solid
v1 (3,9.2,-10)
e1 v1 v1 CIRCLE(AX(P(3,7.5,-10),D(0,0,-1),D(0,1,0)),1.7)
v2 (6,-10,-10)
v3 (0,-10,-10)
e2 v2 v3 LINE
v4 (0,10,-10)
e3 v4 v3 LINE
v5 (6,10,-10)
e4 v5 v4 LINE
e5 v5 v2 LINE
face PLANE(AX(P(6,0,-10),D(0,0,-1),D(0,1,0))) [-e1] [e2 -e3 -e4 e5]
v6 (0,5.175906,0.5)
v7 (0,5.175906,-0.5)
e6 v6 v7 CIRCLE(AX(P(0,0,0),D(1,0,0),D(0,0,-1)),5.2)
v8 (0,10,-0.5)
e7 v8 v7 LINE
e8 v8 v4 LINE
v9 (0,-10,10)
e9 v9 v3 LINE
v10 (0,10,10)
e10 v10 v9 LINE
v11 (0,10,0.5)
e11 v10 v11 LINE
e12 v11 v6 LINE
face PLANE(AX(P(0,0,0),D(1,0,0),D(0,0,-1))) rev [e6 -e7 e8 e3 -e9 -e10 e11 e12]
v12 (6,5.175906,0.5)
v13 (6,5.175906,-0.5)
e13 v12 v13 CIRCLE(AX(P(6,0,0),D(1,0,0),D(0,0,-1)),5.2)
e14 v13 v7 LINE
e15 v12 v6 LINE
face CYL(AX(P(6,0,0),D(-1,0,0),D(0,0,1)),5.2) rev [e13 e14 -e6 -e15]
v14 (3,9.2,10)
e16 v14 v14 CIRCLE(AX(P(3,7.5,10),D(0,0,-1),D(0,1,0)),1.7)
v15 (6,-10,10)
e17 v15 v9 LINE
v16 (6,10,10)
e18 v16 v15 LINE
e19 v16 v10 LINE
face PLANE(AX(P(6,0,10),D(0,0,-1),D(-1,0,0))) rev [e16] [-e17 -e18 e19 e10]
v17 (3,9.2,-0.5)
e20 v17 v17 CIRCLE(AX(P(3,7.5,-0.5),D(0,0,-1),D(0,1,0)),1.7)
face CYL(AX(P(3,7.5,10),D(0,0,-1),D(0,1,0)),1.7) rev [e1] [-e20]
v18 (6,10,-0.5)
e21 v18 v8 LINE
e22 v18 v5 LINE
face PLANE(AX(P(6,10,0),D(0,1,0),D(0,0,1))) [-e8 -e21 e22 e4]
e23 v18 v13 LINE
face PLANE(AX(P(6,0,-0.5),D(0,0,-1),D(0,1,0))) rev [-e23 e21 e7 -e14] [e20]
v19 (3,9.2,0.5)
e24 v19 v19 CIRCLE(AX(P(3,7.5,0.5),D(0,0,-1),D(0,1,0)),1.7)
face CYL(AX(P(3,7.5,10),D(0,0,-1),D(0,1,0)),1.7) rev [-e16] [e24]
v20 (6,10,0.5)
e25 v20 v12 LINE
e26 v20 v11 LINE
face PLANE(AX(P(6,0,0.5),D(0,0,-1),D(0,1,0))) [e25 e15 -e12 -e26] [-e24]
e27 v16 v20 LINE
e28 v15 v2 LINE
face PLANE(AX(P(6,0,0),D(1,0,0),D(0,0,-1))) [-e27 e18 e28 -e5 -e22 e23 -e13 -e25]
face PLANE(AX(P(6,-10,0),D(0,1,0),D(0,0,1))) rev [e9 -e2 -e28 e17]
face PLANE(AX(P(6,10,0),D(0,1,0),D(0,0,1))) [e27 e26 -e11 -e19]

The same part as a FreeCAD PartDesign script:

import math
import FreeCAD as App
import Part
import Sketcher

V = App.Vector
Q = App.Units.Quantity

doc = App.newDocument("Part")
body = doc.addObject("PartDesign::Body", "Body")

# Sketch on YZ plane
sketch1 = doc.addObject("Sketcher::SketchObject", "Sketch")
body.addObject(sketch1)
sketch1.AttachmentSupport = (doc.YZ_Plane, [""])
sketch1.MapMode = "FlatFace"
sketch1.addGeometry([
    Part.LineSegment(V(5.2, 0.5, 0), V(10, 0.5, 0)),  # 0
    Part.LineSegment(V(10, 0.5, 0), V(10, 10, 0)),  # 1
    Part.LineSegment(V(10, 10, 0), V(-10, 10, 0)),  # 2
    Part.LineSegment(V(-10, 10, 0), V(-10, -10, 0)),  # 3
    Part.LineSegment(V(-10, -10, 0), V(10, -10, 0)),  # 4
    Part.LineSegment(V(10, -10, 0), V(10, -0.5, 0)),  # 5
    Part.LineSegment(V(10, -0.5, 0), V(5.2, -0.5, 0)),  # 6
    Part.ArcOfCircle(Part.Circle(V(0, 0, 0), V(0, 0, 1), 5.2), math.radians(-90), math.radians(-6)),  # 7
    Part.ArcOfCircle(Part.Circle(V(0, 0, 0), V(0, 0, 1), 5.2), math.radians(6), math.radians(270)),  # 8
], False)
sketch1.addConstraint([
    Sketcher.Constraint("Coincident", 0, 2, 1, 1),
    Sketcher.Constraint("Coincident", 1, 2, 2, 1),
    Sketcher.Constraint("Coincident", 2, 2, 3, 1),
    Sketcher.Constraint("Coincident", 3, 2, 4, 1),
    Sketcher.Constraint("Coincident", 4, 2, 5, 1),
    Sketcher.Constraint("Coincident", 5, 2, 6, 1),
    Sketcher.Constraint("Coincident", 6, 2, 7, 2),
    Sketcher.Constraint("Tangent", 7, 1, 8, 2),
    Sketcher.Constraint("Coincident", 8, 1, 0, 1),
    Sketcher.Constraint("Horizontal", 0),
    Sketcher.Constraint("Vertical", 1),
    Sketcher.Constraint("Horizontal", 2),
    Sketcher.Constraint("Vertical", 3),
    Sketcher.Constraint("Horizontal", 4),
    Sketcher.Constraint("Vertical", 5),
    Sketcher.Constraint("Horizontal", 6),
    Sketcher.Constraint("Coincident", 7, 3, -1, 1),
    Sketcher.Constraint("Equal", 7, 8),
    Sketcher.Constraint("Symmetric", 1, 2, 3, 2, -1, 1),
    Sketcher.Constraint("Symmetric", 0, 2, 5, 2, -1),
    Sketcher.Constraint("PointOnObject", 7, 1, -2),
    Sketcher.Constraint("Equal", 4, 3),
    Sketcher.Constraint("Radius", 7, Q("5.2 mm")),
    Sketcher.Constraint("DistanceX", 2, 2, 2, 1, Q("20 mm")),
    Sketcher.Constraint("DistanceY", 1, 1, 1, 2, Q("9.5 mm")),
])
pad1 = doc.addObject("PartDesign::Pad", "Pad")
body.addObject(pad1)
pad1.Profile = sketch1
pad1.Length = 6

# Sketch on XY plane
sketch2 = doc.addObject("Sketcher::SketchObject", "Sketch001")
body.addObject(sketch2)
sketch2.AttachmentSupport = (doc.XY_Plane, [""])
sketch2.MapMode = "FlatFace"
sketch2.AttachmentOffset = App.Placement(V(0, 0, -10), App.Rotation())
sketch2.addGeometry(Part.Circle(V(3, 7.5, 0), V(0, 0, 1), 1.7), False)
sketch2.addConstraint([
    Sketcher.Constraint("Diameter", 0, Q("3.4 mm")),
    Sketcher.Constraint("DistanceX", -1, 1, 0, 3, Q("3 mm")),
    Sketcher.Constraint("DistanceY", -1, 1, 0, 3, Q("7.5 mm")),
])
pocket1 = doc.addObject("PartDesign::Pocket", "Pocket")
body.addObject(pocket1)
pocket1.Profile = sketch2
pocket1.Type = "ThroughAll"
pocket1.Reversed = True

doc.recompute()
